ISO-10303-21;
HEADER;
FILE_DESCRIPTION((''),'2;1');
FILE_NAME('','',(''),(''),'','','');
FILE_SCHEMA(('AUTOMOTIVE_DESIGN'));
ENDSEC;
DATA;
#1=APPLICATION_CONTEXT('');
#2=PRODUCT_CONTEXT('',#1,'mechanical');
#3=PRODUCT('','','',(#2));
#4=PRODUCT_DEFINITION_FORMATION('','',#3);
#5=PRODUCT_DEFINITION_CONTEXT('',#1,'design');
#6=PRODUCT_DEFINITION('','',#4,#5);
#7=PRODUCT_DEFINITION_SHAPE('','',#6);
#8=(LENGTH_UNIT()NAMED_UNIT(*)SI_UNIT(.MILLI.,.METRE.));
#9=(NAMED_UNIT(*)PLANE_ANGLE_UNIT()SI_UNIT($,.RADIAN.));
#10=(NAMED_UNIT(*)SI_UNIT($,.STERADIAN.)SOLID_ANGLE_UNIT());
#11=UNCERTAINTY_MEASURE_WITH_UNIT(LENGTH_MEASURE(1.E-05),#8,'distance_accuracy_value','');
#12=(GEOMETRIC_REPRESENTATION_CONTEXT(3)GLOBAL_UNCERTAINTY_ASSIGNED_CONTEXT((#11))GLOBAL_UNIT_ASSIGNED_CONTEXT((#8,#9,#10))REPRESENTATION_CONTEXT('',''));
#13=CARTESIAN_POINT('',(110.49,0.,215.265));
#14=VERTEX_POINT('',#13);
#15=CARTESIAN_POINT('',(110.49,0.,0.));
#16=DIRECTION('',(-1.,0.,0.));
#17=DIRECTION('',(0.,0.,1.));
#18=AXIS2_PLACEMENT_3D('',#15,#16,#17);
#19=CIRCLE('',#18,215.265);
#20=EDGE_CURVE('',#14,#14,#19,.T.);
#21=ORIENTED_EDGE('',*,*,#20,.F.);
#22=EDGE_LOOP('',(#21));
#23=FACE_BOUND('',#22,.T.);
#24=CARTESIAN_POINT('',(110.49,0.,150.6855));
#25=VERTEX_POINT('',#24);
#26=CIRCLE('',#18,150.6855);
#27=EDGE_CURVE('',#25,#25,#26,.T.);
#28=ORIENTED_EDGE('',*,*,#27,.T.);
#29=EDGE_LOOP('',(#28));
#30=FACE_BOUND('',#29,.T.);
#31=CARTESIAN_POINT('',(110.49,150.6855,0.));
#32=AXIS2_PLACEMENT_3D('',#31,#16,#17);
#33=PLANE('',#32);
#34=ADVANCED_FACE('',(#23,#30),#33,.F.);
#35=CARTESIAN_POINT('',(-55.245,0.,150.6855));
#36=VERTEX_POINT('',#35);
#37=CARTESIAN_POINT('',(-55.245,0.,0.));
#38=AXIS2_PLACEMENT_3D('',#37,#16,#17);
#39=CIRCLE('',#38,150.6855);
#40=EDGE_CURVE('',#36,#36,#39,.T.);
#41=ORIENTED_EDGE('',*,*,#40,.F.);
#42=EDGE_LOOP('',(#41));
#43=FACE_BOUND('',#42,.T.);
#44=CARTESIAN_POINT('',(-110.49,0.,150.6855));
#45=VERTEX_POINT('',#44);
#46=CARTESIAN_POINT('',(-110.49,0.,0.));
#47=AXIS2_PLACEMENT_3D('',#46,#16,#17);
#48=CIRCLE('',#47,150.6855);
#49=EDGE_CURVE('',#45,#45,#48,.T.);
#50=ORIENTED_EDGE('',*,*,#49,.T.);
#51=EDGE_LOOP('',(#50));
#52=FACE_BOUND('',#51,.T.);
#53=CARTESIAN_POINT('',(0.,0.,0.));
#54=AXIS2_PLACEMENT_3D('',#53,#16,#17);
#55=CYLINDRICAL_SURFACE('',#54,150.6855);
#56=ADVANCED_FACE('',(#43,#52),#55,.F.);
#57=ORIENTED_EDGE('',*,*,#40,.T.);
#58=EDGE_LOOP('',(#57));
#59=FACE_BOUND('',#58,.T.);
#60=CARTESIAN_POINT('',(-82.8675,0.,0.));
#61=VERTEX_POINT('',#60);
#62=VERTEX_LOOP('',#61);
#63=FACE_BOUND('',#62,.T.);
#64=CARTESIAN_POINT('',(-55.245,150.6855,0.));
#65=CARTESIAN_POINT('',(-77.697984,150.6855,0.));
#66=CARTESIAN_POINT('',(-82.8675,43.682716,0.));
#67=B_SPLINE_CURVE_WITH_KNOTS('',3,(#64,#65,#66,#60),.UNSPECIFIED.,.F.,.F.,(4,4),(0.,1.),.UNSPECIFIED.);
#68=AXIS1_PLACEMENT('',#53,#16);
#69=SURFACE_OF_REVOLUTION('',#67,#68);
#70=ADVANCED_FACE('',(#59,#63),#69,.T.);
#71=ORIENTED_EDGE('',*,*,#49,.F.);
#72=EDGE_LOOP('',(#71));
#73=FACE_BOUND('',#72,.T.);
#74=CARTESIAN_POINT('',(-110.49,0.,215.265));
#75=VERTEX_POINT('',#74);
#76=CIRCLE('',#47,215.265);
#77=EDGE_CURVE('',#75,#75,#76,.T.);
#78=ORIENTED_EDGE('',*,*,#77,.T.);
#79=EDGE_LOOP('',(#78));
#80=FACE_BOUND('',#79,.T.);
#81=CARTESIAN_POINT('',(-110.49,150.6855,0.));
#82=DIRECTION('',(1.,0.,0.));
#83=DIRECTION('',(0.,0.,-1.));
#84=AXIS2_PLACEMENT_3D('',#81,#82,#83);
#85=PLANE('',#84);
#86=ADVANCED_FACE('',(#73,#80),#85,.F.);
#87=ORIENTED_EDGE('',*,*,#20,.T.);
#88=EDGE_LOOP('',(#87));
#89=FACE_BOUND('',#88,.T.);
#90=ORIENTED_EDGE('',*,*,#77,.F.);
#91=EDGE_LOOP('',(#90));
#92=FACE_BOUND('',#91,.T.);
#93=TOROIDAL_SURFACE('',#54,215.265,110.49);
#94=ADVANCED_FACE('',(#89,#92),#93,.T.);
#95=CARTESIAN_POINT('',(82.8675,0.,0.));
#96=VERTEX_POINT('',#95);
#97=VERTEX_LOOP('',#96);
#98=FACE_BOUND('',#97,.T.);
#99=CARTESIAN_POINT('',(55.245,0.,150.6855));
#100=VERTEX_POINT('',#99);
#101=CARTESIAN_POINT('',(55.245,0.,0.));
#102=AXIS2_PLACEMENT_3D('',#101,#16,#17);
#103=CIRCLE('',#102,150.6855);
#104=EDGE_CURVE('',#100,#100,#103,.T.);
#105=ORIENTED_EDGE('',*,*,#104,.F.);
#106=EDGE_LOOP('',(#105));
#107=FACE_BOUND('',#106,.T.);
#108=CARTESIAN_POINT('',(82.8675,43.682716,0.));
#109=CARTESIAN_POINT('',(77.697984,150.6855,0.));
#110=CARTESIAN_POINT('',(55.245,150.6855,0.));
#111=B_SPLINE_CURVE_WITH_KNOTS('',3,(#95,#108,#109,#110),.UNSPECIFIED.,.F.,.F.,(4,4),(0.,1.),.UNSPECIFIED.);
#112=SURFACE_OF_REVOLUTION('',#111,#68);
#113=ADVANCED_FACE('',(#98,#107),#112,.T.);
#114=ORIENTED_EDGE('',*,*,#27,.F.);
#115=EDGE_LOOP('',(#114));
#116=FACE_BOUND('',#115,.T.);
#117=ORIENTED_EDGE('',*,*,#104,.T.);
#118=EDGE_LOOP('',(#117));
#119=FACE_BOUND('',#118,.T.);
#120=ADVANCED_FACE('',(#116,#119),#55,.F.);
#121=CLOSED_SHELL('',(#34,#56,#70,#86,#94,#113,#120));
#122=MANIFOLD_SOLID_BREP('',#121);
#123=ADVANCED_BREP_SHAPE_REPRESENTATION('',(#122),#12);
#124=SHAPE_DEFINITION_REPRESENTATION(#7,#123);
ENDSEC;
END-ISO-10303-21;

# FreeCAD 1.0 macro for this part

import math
import FreeCAD as App
import Part
import Sketcher

V = App.Vector
Q = App.Units.Quantity

doc = App.newDocument("Part")
body = doc.addObject("PartDesign::Body", "Body")

# Sketch on XY plane
sketch1 = body.newObject("Sketcher::SketchObject", "Sketch")
sketch1.AttachmentSupport = (doc.getObject("XY_Plane"), [""])
sketch1.MapMode = "FlatFace"
sketch1.addGeometry([
    Part.LineSegment(V(-82.8675, 0, 0), V(82.8675, 0, 0)),  # 0
    Part.BSplineCurve([V(55.245, 150.6855, 0), V(77.697984, 150.6855, 0), V(82.8675, 43.682716, 0), V(82.8675, 0, 0)], [4, 4], [0, 1], False, 3, [1, 1, 1, 1], False),  # 1
    Part.LineSegment(V(55.245, 150.6855, 0), V(110.49, 150.6855, 0)),  # 2
    Part.LineSegment(V(110.49, 150.6855, 0), V(110.49, 215.265, 0)),  # 3
    Part.ArcOfCircle(Part.Circle(V(0, 215.265, 0), V(0, 0, 1), 110.49), math.radians(0), math.radians(180)),  # 4
    Part.LineSegment(V(-110.49, 215.265, 0), V(-110.49, 150.6855, 0)),  # 5
    Part.LineSegment(V(-110.49, 150.6855, 0), V(-55.245, 150.6855, 0)),  # 6
    Part.BSplineCurve([V(-55.245, 150.6855, 0), V(-77.697984, 150.6855, 0), V(-82.8675, 43.682716, 0), V(-82.8675, 0, 0)], [4, 4], [0, 1], False, 3, [1, 1, 1, 1], False),  # 7
], False)
sketch1.addConstraint([
    Sketcher.Constraint("Block", 1),
    Sketcher.Constraint("Block", 7),
    Sketcher.Constraint("Coincident", 0, 2, 1, 2),
    Sketcher.Constraint("Coincident", 1, 1, 2, 1),
    Sketcher.Constraint("Coincident", 2, 2, 3, 1),
    Sketcher.Constraint("Tangent", 3, 2, 4, 1),
    Sketcher.Constraint("Tangent", 4, 2, 5, 1),
    Sketcher.Constraint("Coincident", 5, 2, 6, 1),
    Sketcher.Constraint("Coincident", 6, 2, 7, 1),
    Sketcher.Constraint("Coincident", 7, 2, 0, 1),
    Sketcher.Constraint("Horizontal", 2),
    Sketcher.Constraint("Vertical", 3),
    Sketcher.Constraint("Vertical", 5),
    Sketcher.Constraint("Horizontal", 6),
    Sketcher.Constraint("PointOnObject", 4, 3, -2),
    Sketcher.Constraint("Radius", 4, Q("4.35 in")),
    Sketcher.Constraint("DistanceY", 3, 1, 3, 2, Q("2.5425 in")),
])
revolution = body.newObject("PartDesign::Revolution", "Revolution")
revolution.Profile = sketch1
revolution.ReferenceAxis = (sketch1, ["H_Axis"])
revolution.Angle = 360

doc.recompute()
